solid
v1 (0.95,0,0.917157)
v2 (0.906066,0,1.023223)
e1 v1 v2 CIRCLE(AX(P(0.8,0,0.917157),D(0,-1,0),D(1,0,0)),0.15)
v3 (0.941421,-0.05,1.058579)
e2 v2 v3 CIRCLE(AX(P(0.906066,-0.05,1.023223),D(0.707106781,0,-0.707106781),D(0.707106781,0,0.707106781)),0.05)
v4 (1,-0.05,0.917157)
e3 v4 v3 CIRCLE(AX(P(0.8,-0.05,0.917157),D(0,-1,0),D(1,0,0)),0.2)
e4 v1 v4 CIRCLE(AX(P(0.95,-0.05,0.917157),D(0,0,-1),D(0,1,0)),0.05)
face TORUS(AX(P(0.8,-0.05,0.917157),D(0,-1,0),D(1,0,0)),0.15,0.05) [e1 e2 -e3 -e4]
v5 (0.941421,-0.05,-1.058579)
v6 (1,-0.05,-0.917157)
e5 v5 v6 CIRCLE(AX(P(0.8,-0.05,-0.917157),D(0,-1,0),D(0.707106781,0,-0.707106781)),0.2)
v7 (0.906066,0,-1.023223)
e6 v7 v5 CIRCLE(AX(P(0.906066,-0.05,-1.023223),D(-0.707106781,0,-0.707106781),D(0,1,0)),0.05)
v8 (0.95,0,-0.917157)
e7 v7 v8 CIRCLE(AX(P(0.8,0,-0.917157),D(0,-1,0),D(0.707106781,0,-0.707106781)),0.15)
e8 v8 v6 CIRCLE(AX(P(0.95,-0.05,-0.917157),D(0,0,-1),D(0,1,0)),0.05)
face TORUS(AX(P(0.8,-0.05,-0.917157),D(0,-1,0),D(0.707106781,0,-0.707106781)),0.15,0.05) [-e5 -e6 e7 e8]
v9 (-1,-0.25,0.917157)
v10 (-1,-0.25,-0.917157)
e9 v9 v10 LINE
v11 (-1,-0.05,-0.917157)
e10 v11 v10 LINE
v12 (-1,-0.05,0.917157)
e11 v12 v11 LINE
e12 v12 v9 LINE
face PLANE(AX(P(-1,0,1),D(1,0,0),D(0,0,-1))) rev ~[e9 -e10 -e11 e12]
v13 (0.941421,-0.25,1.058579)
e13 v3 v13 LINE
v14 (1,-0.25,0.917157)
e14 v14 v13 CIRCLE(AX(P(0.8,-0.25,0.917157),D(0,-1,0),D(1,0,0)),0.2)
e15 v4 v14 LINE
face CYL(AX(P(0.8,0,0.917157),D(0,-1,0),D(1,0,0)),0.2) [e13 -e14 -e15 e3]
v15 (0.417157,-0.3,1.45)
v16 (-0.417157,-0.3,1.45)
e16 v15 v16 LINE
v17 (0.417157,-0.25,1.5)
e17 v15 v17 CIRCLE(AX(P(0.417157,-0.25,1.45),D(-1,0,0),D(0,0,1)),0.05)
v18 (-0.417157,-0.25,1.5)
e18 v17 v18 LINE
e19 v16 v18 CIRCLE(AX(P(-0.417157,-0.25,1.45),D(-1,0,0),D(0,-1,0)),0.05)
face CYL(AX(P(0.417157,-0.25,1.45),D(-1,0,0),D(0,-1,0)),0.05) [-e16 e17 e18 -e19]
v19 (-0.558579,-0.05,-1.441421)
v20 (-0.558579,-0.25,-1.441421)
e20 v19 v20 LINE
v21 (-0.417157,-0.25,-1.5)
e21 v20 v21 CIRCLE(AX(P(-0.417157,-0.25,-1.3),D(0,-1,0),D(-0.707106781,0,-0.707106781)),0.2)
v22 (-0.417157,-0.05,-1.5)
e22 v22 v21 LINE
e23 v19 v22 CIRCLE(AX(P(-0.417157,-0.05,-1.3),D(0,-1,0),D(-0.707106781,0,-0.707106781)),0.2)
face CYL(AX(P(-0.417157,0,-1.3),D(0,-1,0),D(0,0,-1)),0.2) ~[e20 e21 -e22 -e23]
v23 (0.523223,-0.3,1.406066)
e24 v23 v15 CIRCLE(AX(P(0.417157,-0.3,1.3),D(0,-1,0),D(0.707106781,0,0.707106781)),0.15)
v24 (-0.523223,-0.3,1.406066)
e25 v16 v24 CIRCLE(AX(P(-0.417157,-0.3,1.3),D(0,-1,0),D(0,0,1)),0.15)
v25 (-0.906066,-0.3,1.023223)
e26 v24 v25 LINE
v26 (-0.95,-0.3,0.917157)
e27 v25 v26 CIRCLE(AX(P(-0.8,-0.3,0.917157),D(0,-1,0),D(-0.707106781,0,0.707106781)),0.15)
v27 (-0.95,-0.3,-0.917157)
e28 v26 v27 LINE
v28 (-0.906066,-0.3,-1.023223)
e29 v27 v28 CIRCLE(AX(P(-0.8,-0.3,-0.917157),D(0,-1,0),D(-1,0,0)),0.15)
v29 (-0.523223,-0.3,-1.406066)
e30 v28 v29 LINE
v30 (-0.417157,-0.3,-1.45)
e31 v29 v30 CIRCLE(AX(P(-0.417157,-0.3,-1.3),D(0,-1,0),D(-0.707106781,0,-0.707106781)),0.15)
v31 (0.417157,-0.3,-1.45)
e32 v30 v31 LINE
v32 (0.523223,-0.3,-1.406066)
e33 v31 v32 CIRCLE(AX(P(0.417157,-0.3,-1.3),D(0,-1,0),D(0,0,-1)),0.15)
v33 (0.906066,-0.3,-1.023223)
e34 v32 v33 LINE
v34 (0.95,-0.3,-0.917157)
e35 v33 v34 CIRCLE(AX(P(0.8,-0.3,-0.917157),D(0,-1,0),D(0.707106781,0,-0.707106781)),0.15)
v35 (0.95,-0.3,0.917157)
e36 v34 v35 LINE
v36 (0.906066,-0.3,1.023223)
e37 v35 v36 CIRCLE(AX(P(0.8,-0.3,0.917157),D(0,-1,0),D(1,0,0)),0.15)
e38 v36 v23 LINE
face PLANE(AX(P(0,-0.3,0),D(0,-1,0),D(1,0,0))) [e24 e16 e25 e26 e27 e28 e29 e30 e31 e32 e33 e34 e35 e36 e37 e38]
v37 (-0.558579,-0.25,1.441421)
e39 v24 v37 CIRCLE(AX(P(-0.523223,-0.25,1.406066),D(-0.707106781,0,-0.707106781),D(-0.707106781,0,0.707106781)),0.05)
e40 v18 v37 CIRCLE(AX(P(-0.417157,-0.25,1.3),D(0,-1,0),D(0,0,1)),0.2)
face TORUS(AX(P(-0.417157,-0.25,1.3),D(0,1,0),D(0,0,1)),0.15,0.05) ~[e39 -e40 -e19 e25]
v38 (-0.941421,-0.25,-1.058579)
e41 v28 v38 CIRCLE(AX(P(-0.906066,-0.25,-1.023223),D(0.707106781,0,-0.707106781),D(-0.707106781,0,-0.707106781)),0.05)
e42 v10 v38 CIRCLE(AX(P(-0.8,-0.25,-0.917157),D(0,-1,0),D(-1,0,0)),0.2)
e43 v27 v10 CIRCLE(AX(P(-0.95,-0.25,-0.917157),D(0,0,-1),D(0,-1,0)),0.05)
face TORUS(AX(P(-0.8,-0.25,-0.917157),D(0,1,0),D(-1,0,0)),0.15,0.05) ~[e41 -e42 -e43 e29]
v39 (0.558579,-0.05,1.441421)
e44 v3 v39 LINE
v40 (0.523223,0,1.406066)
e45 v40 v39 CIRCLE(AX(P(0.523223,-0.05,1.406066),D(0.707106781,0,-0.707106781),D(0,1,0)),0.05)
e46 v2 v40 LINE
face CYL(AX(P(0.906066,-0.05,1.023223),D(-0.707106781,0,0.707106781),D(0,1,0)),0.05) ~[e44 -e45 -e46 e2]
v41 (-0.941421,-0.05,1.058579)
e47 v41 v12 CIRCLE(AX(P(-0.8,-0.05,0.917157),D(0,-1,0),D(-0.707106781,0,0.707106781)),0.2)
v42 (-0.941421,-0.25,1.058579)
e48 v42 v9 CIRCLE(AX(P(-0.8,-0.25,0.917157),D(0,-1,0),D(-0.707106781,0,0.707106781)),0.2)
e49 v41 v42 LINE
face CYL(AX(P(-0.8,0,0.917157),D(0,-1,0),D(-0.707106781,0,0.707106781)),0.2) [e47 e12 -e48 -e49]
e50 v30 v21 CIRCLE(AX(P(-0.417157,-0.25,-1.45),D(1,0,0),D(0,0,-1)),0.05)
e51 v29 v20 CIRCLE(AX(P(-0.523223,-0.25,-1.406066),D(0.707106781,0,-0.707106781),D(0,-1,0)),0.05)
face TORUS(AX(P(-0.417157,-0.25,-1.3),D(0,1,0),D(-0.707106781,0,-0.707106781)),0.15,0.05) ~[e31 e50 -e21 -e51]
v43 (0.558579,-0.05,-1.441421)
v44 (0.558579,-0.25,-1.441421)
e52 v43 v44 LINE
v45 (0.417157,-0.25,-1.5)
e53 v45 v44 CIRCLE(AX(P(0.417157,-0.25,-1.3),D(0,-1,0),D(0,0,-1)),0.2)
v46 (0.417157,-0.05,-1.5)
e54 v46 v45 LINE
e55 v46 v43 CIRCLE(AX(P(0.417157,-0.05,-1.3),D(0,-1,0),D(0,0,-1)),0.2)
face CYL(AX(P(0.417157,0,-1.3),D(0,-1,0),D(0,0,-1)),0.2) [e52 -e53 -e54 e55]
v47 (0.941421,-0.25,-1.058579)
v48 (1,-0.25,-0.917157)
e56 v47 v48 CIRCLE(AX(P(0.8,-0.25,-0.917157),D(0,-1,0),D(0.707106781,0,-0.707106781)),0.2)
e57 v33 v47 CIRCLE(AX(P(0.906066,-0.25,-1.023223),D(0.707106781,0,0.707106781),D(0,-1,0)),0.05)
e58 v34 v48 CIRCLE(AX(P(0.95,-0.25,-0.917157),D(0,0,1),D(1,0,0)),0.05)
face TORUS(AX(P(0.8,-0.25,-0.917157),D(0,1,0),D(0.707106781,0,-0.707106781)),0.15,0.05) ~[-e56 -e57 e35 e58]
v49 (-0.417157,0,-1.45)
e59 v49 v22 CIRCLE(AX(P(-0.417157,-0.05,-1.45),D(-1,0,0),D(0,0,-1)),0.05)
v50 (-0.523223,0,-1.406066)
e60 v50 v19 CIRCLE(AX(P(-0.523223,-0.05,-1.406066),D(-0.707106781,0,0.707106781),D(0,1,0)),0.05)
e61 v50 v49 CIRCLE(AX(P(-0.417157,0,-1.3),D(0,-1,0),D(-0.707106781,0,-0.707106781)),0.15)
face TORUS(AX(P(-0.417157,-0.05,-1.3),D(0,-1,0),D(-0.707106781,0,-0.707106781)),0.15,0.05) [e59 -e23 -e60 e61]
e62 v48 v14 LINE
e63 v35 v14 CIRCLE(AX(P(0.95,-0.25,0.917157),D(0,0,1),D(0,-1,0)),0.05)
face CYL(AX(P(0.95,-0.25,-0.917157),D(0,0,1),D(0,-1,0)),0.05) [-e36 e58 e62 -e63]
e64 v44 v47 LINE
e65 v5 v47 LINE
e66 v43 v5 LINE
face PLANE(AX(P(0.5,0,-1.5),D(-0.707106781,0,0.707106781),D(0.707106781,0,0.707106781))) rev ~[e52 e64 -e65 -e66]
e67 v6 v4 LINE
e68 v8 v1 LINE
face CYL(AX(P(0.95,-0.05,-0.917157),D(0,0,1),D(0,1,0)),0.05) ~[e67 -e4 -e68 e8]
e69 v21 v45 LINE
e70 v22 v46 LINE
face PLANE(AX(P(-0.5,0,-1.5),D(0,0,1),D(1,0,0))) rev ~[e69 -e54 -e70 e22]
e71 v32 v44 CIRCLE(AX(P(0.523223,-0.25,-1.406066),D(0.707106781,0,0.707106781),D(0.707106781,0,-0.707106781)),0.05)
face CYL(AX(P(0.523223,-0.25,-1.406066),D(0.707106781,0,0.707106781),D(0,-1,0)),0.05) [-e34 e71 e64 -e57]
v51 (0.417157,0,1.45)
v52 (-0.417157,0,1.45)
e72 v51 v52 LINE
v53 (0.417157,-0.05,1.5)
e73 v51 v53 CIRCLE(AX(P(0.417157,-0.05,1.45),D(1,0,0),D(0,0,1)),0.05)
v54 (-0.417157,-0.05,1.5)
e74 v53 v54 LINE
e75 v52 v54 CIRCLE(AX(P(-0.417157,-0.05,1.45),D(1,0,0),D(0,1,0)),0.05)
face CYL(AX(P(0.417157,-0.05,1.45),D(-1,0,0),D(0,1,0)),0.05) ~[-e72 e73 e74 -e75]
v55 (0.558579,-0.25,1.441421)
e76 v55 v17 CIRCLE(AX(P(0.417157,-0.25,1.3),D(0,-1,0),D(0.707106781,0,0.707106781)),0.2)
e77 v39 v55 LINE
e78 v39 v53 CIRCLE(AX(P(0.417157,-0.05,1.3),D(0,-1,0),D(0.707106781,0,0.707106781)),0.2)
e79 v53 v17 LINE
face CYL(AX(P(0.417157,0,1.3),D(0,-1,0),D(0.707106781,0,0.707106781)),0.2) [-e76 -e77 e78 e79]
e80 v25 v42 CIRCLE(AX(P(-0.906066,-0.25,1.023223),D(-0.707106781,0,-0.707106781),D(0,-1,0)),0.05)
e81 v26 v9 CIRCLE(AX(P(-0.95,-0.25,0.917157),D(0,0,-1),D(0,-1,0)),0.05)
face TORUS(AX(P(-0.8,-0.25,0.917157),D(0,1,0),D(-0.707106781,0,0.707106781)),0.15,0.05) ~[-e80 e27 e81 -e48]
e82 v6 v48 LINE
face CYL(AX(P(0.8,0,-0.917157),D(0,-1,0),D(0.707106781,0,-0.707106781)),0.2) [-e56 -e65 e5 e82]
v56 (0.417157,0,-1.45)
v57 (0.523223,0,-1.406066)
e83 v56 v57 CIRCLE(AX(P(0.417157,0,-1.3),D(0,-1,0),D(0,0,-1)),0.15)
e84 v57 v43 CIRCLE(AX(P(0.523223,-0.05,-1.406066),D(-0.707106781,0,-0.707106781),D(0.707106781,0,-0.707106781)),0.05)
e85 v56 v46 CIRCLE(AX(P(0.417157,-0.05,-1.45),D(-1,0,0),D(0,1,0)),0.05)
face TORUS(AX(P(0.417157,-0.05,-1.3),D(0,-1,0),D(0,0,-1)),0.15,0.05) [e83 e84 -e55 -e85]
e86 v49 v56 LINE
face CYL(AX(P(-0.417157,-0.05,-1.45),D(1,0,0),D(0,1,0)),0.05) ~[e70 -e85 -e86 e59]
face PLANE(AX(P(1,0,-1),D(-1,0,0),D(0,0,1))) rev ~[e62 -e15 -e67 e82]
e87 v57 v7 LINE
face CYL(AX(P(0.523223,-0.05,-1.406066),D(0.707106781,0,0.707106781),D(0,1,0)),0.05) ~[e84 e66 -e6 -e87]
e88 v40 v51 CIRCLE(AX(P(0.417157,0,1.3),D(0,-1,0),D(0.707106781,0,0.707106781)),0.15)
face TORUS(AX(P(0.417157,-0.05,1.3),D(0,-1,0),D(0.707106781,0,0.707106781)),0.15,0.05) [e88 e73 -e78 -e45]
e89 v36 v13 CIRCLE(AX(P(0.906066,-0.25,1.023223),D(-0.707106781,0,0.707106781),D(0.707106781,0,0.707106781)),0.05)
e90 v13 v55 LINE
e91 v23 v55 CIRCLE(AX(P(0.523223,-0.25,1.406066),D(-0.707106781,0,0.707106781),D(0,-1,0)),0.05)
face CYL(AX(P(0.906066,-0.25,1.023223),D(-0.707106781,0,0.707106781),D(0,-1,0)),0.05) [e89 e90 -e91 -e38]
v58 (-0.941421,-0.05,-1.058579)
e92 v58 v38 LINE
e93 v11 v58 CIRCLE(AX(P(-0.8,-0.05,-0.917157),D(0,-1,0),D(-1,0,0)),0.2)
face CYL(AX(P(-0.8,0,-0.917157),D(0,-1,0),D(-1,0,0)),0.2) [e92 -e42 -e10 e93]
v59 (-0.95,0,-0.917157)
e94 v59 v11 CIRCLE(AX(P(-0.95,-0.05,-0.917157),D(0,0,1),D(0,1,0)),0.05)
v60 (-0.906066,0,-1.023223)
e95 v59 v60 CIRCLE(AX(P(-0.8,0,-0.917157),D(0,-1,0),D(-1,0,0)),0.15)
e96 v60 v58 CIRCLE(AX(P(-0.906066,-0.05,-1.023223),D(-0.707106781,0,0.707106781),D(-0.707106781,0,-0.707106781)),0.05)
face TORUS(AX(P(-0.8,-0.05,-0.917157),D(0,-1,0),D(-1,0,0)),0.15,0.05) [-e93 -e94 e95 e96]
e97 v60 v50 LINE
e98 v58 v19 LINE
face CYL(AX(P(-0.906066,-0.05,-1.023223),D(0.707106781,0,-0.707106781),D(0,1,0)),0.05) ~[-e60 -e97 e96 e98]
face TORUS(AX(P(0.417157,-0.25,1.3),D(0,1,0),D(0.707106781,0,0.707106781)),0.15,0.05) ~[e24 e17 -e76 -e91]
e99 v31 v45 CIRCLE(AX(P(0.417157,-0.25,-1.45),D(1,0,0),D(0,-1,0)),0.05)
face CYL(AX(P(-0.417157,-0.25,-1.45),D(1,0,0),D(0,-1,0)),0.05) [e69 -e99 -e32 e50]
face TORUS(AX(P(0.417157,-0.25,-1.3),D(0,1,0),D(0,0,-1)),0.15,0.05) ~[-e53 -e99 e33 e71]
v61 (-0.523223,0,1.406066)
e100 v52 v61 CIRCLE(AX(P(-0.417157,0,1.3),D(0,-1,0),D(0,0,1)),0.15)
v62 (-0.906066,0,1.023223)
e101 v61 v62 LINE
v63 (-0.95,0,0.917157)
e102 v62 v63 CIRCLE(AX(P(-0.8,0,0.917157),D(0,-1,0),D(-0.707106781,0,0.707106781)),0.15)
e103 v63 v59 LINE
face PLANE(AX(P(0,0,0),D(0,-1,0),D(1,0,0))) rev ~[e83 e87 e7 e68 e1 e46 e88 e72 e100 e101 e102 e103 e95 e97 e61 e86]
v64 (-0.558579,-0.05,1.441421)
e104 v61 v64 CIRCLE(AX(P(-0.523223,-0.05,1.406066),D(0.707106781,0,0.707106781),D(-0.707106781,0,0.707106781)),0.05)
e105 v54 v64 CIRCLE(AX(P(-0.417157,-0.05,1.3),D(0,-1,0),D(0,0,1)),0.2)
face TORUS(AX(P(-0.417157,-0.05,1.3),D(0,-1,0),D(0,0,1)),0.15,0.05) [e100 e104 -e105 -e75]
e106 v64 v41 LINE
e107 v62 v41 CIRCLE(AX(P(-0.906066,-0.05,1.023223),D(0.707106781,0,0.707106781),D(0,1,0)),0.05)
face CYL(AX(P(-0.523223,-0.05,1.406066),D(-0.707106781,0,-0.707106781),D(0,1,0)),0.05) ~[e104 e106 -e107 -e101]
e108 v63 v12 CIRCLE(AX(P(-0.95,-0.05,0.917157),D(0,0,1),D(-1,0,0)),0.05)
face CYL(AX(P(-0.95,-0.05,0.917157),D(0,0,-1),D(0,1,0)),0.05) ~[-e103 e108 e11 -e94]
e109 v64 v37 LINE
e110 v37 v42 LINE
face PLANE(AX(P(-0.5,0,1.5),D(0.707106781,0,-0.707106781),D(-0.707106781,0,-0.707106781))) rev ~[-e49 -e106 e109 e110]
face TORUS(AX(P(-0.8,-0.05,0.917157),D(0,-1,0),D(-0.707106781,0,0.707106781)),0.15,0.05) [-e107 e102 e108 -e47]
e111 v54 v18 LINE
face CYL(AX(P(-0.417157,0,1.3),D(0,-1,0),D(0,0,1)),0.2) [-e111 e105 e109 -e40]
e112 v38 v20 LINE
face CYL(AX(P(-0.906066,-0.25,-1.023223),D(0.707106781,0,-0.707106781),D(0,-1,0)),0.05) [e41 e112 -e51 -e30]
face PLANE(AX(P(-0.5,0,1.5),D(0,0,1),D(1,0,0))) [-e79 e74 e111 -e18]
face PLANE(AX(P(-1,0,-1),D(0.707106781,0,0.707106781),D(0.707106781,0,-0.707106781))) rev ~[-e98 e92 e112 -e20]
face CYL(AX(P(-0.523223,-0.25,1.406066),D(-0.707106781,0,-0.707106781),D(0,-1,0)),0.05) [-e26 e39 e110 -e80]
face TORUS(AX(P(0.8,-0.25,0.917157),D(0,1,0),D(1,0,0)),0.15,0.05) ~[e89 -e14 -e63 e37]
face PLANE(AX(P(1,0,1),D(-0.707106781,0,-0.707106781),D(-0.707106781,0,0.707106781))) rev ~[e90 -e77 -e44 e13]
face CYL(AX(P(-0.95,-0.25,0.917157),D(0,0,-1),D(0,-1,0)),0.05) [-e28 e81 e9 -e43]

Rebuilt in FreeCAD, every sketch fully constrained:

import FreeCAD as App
import Part
import Sketcher

V = App.Vector


def edges_at(feature, points):
    """Names of the edges that pass closest to the given points."""
    edges = feature.Shape.Edges
    near = lambda p: min(range(len(edges)), key=lambda i: edges[i].distToShape(Part.Vertex(*p))[0])
    return sorted({f"Edge{near(p) + 1}" for p in points})

doc = App.newDocument("Part")
body = doc.addObject("PartDesign::Body", "Body")

sketch1 = body.newObject("Sketcher::SketchObject", "Sketch")
sketch1.AttachmentSupport = (doc.getObject("XZ_Plane"), [""])
sketch1.MapMode = "FlatFace"
sketch1.addGeometry([
    Part.LineSegment(V(-0.5, -1.5, 0), V(0.5, -1.5, 0)),
    Part.LineSegment(V(0.5, -1.5, 0), V(1, -1, 0)),
    Part.LineSegment(V(1, -1, 0), V(1, 1, 0)),
    Part.LineSegment(V(1, 1, 0), V(0.5, 1.5, 0)),
    Part.LineSegment(V(0.5, 1.5, 0), V(-0.5, 1.5, 0)),
    Part.LineSegment(V(-0.5, 1.5, 0), V(-1, 1, 0)),
    Part.LineSegment(V(-1, 1, 0), V(-1, -1, 0)),
    Part.LineSegment(V(-1, -1, 0), V(-0.5, -1.5, 0)),
], False)
sketch1.addConstraint([
    Sketcher.Constraint("Coincident", 0, 2, 1, 1),
    Sketcher.Constraint("Coincident", 1, 2, 2, 1),
    Sketcher.Constraint("Coincident", 2, 2, 3, 1),
    Sketcher.Constraint("Coincident", 3, 2, 4, 1),
    Sketcher.Constraint("Coincident", 4, 2, 5, 1),
    Sketcher.Constraint("Coincident", 5, 2, 6, 1),
    Sketcher.Constraint("Coincident", 6, 2, 7, 1),
    Sketcher.Constraint("Coincident", 7, 2, 0, 1),
    Sketcher.Constraint("Horizontal", 0),
    Sketcher.Constraint("Vertical", 2),
    Sketcher.Constraint("Horizontal", 4),
    Sketcher.Constraint("Vertical", 6),
    Sketcher.Constraint("Symmetric", 0, 2, 4, 2, -1, 1),
    Sketcher.Constraint("Symmetric", 1, 2, 5, 2, -1, 1),
    Sketcher.Constraint("Perpendicular", 1, 3),
    Sketcher.Constraint("Perpendicular", 5, 7),
    Sketcher.Constraint("Horizontal", 2, 2, 5, 2),
    Sketcher.Constraint("Horizontal", 1, 2, 6, 2),
    Sketcher.Constraint("Vertical", 0, 2, 3, 2),
    Sketcher.Constraint("DistanceX", 0, 1, 0, 2, 1.0),
    Sketcher.Constraint("DistanceY", 2, 1, 2, 2, 2.0),
    Sketcher.Constraint("DistanceX", -1, 1, 1, 2, 1.0),
])
pad1 = body.newObject("PartDesign::Pad", "Pad")
pad1.Profile = sketch1
pad1.Length = 0.3
doc.recompute()

fillet = body.newObject("PartDesign::Fillet", "Fillet")
fillet.Base = (pad1, edges_at(pad1, [
    (0.5, -0.15, 1.5),
    (1, -0.15, 1),
    (-0.5, -0.15, 1.5),
    (-1, -0.15, 1),
    (-1, -0.15, -1),
    (-0.5, -0.15, -1.5),
    (0.5, -0.15, -1.5),
    (1, -0.15, -1),
]))
fillet.Radius = 0.2
doc.recompute()

fillet2 = body.newObject("PartDesign::Fillet", "Fillet001")
fillet2.Base = (fillet, edges_at(fillet, [(1, 0, 0), (-1, -0.3, 0)]))
fillet2.Radius = 0.05

doc.recompute()
